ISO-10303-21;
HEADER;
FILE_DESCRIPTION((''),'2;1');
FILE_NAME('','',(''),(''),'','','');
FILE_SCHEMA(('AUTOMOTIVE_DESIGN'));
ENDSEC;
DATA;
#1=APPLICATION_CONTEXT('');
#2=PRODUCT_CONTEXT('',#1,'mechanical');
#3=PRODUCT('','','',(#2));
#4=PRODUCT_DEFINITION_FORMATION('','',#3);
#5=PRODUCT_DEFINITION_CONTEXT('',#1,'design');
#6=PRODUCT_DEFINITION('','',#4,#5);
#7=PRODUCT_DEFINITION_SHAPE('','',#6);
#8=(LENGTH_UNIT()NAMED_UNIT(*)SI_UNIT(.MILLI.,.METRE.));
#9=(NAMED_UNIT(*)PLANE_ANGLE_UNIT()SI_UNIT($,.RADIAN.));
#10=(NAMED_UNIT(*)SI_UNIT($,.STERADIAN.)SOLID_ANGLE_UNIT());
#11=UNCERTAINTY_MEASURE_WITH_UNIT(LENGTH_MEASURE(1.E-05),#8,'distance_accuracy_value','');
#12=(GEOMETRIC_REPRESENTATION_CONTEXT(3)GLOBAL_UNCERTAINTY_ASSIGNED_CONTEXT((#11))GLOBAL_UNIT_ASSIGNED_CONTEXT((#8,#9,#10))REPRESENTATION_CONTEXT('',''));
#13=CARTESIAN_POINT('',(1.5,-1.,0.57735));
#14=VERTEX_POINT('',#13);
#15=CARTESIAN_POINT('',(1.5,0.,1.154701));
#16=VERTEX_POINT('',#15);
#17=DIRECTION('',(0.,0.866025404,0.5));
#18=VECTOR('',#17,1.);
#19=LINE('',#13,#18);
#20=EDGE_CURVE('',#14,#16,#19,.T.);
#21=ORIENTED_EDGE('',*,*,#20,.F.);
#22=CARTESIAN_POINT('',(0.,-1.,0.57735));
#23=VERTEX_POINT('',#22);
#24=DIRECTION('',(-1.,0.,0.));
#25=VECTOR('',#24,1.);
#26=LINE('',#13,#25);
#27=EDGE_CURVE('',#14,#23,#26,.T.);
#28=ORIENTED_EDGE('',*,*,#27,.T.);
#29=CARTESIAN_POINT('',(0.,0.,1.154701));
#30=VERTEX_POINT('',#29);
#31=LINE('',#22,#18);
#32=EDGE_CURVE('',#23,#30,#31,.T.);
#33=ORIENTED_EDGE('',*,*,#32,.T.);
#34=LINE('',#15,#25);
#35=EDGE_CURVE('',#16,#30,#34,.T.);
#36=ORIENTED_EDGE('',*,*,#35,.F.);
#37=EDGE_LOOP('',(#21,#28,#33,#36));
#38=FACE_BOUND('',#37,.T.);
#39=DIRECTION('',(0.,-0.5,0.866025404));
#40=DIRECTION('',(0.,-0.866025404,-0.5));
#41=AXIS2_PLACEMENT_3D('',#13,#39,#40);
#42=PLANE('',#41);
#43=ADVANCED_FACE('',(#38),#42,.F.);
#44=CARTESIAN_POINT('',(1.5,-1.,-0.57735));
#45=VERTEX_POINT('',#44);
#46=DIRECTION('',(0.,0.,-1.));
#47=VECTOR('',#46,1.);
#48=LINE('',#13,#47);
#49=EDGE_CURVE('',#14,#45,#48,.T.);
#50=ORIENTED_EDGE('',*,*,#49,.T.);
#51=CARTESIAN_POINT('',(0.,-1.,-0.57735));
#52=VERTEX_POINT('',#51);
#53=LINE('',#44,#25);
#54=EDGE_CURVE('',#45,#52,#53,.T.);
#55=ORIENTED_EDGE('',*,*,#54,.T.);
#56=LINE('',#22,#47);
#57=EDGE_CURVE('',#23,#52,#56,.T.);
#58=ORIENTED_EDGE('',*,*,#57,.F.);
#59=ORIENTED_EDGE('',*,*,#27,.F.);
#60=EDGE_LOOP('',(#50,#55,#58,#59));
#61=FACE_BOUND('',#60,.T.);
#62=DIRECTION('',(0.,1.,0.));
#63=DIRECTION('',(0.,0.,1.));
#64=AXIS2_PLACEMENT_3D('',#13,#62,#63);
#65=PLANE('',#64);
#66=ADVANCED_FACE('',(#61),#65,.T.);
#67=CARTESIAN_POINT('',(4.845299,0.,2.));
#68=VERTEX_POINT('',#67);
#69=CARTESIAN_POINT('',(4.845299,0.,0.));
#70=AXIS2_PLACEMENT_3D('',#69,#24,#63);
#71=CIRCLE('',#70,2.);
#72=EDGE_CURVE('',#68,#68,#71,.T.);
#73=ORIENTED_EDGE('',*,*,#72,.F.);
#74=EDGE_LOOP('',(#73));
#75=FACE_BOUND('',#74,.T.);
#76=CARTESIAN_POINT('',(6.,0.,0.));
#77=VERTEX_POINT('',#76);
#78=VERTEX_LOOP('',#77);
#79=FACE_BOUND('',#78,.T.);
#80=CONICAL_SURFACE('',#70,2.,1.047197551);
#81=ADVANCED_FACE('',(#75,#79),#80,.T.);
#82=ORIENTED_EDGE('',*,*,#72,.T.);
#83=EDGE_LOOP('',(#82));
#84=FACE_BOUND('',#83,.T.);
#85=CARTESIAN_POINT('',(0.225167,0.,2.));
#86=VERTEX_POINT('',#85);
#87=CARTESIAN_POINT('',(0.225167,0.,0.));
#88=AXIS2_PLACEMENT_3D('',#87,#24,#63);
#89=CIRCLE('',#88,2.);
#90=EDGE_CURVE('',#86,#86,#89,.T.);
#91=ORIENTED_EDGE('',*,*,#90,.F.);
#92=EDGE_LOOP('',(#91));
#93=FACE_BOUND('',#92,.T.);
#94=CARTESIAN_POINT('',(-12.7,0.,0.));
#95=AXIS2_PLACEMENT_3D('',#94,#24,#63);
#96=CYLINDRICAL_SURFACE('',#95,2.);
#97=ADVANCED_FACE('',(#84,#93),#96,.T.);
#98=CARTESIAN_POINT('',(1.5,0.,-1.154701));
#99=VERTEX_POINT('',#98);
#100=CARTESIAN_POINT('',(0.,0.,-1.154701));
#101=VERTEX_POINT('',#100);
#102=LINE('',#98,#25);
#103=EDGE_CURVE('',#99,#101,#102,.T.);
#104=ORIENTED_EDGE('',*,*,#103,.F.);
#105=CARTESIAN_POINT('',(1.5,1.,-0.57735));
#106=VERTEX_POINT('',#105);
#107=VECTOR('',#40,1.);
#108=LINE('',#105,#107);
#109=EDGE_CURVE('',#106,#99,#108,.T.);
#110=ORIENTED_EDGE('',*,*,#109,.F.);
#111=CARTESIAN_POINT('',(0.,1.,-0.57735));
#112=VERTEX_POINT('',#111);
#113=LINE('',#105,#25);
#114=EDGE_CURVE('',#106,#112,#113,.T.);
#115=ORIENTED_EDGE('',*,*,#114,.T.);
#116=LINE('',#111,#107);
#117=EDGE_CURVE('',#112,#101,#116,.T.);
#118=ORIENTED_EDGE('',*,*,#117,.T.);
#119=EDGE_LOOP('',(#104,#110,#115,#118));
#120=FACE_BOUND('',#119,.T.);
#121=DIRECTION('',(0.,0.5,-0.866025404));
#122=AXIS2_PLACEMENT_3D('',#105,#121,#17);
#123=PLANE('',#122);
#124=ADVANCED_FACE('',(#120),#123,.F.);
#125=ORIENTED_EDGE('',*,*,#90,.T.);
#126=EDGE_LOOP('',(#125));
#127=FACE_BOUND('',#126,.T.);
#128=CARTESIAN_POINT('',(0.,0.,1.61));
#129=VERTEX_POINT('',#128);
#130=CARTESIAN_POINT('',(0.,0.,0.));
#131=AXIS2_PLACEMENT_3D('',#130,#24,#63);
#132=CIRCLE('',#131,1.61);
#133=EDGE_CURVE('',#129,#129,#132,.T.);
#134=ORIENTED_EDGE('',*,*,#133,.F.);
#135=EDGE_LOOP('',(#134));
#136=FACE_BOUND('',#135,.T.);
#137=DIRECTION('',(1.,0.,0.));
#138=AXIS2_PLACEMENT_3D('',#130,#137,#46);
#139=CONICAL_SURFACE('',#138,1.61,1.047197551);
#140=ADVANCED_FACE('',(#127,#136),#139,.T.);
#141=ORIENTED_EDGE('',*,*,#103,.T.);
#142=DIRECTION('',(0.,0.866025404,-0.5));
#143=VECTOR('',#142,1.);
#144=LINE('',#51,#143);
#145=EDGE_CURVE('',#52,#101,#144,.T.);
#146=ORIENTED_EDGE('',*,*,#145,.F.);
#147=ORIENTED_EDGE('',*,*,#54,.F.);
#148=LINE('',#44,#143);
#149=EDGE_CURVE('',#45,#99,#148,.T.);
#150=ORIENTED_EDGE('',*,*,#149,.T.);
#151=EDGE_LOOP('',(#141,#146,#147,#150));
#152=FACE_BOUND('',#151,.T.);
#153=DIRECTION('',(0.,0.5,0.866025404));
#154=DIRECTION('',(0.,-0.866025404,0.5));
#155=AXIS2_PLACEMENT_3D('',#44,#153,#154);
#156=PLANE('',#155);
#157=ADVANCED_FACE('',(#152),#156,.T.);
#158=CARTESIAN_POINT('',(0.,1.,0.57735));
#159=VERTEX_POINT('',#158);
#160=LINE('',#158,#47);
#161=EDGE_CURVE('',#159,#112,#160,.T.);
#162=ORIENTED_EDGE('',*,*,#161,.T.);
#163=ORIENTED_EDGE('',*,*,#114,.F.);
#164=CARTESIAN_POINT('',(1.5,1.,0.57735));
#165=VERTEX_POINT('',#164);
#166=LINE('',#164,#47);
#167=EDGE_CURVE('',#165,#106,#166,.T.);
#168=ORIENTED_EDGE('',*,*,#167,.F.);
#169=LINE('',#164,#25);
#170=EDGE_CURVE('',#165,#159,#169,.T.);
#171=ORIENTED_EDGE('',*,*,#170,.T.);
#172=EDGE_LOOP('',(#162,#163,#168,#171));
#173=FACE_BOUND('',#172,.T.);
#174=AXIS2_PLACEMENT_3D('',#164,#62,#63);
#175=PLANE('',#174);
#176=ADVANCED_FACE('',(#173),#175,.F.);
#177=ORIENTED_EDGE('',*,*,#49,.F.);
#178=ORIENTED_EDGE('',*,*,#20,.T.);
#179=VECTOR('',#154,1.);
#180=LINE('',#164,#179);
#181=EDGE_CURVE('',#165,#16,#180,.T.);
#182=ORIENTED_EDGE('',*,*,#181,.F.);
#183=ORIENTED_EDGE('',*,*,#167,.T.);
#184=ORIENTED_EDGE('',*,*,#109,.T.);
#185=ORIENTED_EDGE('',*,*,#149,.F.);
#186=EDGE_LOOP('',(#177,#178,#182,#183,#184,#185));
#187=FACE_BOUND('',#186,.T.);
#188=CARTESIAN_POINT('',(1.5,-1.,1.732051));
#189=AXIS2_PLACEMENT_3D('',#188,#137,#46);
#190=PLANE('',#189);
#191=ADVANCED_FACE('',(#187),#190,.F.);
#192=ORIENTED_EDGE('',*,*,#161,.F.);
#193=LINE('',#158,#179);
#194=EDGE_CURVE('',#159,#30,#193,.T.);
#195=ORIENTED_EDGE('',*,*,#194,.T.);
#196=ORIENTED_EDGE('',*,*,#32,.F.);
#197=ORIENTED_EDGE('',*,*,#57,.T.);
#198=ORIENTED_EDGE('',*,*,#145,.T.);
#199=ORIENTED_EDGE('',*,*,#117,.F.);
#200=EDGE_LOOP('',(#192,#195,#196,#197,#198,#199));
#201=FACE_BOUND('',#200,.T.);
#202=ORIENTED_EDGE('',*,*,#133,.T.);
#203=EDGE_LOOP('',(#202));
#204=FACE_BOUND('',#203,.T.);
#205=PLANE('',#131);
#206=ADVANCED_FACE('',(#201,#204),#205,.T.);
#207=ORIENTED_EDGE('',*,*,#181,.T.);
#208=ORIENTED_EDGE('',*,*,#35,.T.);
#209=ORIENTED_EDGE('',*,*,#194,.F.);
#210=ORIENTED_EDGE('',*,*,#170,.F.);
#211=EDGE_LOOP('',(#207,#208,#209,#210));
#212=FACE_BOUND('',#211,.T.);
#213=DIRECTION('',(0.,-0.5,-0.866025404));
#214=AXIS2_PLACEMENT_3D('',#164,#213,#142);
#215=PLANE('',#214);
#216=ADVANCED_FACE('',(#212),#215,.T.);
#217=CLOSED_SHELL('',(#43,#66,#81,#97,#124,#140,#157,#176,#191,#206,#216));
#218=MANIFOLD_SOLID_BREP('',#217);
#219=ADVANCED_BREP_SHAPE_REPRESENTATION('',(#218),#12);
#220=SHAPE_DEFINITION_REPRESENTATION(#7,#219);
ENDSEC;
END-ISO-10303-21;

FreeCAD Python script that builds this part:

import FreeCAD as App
import Part
import Sketcher
from FreeCAD import Vector
Q = App.Units.Quantity


def add_polygon(sketch, points):
    """Adds a closed chain of lines whose ends are joined by coincident constraints."""
    first, n = sketch.GeometryCount, len(points)
    for a, b in zip(points, points[1:] + points[:1]):
        sketch.addGeometry(Part.LineSegment(App.Vector(*a, 0), App.Vector(*b, 0)), False)
    for i in range(n):
        sketch.addConstraint(Sketcher.Constraint("Coincident", first + i, 2, first + (i + 1) % n, 1))

doc = App.newDocument("Part")
body = doc.addObject("PartDesign::Body", "Body")

# Sketch on XY plane
sketch1 = body.newObject("Sketcher::SketchObject", "Sketch")
sketch1.AttachmentSupport = (doc.getObject("XY_Plane"), [""])
sketch1.MapMode = "FlatFace"
add_polygon(sketch1, [(0, 1.61), (0, 0), (6, 0), (4.845299, 2), (0.225167, 2)])  # lines 0-4
sketch1.addConstraint(Sketcher.Constraint("Vertical", 0))
sketch1.addConstraint(Sketcher.Constraint("Horizontal", 1))
sketch1.addConstraint(Sketcher.Constraint("Horizontal", 3))
sketch1.addConstraint(Sketcher.Constraint("Coincident", 0, 2, -1, 1))
sketch1.addConstraint(Sketcher.Constraint("DistanceX", 1, 1, 1, 2, 6.0))
sketch1.addConstraint(Sketcher.Constraint("Angle", 2, Q("120 deg")))
sketch1.addConstraint(Sketcher.Constraint("Angle", 4, Q("-120 deg")))
sketch1.addConstraint(Sketcher.Constraint("DistanceY", -1, 1, 2, 2, 2.0))
sketch1.addConstraint(Sketcher.Constraint("DistanceY", 0, 2, 0, 1, 1.61))
revolution = body.newObject("PartDesign::Revolution", "Revolution")
revolution.Profile = sketch1
revolution.ReferenceAxis = (sketch1, ["H_Axis"])
revolution.Angle = 360

# Sketch on YZ plane
sketch2 = body.newObject("Sketcher::SketchObject", "Sketch001")
sketch2.AttachmentSupport = (doc.getObject("YZ_Plane"), [""])
sketch2.MapMode = "FlatFace"
add_polygon(sketch2, [(1, 0.57735), (1, -0.57735), (0, -1.154701), (-1, -0.57735), (-1, 0.57735), (0, 1.154701)])  # lines 0-5
sketch2.addConstraint(Sketcher.Constraint("Vertical", 0))
sketch2.addConstraint(Sketcher.Constraint("Vertical", 3))
sketch2.addConstraint(Sketcher.Constraint("Symmetric", 0, 2, 3, 2, -1, 1))
sketch2.addConstraint(Sketcher.Constraint("Symmetric", 1, 2, 4, 2, -1, 1))
sketch2.addConstraint(Sketcher.Constraint("PointOnObject", 1, 2, -2))
sketch2.addConstraint(Sketcher.Constraint("Parallel", 2, 5))
sketch2.addConstraint(Sketcher.Constraint("Horizontal", 0, 2, 2, 2))
sketch2.addConstraint(Sketcher.Constraint("Angle", 1, Q("-150 deg")))
sketch2.addConstraint(Sketcher.Constraint("DistanceX", -1, 1, 0, 2, 1.0))
sketch2.addConstraint(Sketcher.Constraint("DistanceY", 0, 2, 0, 1, 1.154701))
pocket1 = body.newObject("PartDesign::Pocket", "Pocket")
pocket1.Profile = sketch2
pocket1.Length = 1.5
pocket1.Reversed = True

doc.recompute()
